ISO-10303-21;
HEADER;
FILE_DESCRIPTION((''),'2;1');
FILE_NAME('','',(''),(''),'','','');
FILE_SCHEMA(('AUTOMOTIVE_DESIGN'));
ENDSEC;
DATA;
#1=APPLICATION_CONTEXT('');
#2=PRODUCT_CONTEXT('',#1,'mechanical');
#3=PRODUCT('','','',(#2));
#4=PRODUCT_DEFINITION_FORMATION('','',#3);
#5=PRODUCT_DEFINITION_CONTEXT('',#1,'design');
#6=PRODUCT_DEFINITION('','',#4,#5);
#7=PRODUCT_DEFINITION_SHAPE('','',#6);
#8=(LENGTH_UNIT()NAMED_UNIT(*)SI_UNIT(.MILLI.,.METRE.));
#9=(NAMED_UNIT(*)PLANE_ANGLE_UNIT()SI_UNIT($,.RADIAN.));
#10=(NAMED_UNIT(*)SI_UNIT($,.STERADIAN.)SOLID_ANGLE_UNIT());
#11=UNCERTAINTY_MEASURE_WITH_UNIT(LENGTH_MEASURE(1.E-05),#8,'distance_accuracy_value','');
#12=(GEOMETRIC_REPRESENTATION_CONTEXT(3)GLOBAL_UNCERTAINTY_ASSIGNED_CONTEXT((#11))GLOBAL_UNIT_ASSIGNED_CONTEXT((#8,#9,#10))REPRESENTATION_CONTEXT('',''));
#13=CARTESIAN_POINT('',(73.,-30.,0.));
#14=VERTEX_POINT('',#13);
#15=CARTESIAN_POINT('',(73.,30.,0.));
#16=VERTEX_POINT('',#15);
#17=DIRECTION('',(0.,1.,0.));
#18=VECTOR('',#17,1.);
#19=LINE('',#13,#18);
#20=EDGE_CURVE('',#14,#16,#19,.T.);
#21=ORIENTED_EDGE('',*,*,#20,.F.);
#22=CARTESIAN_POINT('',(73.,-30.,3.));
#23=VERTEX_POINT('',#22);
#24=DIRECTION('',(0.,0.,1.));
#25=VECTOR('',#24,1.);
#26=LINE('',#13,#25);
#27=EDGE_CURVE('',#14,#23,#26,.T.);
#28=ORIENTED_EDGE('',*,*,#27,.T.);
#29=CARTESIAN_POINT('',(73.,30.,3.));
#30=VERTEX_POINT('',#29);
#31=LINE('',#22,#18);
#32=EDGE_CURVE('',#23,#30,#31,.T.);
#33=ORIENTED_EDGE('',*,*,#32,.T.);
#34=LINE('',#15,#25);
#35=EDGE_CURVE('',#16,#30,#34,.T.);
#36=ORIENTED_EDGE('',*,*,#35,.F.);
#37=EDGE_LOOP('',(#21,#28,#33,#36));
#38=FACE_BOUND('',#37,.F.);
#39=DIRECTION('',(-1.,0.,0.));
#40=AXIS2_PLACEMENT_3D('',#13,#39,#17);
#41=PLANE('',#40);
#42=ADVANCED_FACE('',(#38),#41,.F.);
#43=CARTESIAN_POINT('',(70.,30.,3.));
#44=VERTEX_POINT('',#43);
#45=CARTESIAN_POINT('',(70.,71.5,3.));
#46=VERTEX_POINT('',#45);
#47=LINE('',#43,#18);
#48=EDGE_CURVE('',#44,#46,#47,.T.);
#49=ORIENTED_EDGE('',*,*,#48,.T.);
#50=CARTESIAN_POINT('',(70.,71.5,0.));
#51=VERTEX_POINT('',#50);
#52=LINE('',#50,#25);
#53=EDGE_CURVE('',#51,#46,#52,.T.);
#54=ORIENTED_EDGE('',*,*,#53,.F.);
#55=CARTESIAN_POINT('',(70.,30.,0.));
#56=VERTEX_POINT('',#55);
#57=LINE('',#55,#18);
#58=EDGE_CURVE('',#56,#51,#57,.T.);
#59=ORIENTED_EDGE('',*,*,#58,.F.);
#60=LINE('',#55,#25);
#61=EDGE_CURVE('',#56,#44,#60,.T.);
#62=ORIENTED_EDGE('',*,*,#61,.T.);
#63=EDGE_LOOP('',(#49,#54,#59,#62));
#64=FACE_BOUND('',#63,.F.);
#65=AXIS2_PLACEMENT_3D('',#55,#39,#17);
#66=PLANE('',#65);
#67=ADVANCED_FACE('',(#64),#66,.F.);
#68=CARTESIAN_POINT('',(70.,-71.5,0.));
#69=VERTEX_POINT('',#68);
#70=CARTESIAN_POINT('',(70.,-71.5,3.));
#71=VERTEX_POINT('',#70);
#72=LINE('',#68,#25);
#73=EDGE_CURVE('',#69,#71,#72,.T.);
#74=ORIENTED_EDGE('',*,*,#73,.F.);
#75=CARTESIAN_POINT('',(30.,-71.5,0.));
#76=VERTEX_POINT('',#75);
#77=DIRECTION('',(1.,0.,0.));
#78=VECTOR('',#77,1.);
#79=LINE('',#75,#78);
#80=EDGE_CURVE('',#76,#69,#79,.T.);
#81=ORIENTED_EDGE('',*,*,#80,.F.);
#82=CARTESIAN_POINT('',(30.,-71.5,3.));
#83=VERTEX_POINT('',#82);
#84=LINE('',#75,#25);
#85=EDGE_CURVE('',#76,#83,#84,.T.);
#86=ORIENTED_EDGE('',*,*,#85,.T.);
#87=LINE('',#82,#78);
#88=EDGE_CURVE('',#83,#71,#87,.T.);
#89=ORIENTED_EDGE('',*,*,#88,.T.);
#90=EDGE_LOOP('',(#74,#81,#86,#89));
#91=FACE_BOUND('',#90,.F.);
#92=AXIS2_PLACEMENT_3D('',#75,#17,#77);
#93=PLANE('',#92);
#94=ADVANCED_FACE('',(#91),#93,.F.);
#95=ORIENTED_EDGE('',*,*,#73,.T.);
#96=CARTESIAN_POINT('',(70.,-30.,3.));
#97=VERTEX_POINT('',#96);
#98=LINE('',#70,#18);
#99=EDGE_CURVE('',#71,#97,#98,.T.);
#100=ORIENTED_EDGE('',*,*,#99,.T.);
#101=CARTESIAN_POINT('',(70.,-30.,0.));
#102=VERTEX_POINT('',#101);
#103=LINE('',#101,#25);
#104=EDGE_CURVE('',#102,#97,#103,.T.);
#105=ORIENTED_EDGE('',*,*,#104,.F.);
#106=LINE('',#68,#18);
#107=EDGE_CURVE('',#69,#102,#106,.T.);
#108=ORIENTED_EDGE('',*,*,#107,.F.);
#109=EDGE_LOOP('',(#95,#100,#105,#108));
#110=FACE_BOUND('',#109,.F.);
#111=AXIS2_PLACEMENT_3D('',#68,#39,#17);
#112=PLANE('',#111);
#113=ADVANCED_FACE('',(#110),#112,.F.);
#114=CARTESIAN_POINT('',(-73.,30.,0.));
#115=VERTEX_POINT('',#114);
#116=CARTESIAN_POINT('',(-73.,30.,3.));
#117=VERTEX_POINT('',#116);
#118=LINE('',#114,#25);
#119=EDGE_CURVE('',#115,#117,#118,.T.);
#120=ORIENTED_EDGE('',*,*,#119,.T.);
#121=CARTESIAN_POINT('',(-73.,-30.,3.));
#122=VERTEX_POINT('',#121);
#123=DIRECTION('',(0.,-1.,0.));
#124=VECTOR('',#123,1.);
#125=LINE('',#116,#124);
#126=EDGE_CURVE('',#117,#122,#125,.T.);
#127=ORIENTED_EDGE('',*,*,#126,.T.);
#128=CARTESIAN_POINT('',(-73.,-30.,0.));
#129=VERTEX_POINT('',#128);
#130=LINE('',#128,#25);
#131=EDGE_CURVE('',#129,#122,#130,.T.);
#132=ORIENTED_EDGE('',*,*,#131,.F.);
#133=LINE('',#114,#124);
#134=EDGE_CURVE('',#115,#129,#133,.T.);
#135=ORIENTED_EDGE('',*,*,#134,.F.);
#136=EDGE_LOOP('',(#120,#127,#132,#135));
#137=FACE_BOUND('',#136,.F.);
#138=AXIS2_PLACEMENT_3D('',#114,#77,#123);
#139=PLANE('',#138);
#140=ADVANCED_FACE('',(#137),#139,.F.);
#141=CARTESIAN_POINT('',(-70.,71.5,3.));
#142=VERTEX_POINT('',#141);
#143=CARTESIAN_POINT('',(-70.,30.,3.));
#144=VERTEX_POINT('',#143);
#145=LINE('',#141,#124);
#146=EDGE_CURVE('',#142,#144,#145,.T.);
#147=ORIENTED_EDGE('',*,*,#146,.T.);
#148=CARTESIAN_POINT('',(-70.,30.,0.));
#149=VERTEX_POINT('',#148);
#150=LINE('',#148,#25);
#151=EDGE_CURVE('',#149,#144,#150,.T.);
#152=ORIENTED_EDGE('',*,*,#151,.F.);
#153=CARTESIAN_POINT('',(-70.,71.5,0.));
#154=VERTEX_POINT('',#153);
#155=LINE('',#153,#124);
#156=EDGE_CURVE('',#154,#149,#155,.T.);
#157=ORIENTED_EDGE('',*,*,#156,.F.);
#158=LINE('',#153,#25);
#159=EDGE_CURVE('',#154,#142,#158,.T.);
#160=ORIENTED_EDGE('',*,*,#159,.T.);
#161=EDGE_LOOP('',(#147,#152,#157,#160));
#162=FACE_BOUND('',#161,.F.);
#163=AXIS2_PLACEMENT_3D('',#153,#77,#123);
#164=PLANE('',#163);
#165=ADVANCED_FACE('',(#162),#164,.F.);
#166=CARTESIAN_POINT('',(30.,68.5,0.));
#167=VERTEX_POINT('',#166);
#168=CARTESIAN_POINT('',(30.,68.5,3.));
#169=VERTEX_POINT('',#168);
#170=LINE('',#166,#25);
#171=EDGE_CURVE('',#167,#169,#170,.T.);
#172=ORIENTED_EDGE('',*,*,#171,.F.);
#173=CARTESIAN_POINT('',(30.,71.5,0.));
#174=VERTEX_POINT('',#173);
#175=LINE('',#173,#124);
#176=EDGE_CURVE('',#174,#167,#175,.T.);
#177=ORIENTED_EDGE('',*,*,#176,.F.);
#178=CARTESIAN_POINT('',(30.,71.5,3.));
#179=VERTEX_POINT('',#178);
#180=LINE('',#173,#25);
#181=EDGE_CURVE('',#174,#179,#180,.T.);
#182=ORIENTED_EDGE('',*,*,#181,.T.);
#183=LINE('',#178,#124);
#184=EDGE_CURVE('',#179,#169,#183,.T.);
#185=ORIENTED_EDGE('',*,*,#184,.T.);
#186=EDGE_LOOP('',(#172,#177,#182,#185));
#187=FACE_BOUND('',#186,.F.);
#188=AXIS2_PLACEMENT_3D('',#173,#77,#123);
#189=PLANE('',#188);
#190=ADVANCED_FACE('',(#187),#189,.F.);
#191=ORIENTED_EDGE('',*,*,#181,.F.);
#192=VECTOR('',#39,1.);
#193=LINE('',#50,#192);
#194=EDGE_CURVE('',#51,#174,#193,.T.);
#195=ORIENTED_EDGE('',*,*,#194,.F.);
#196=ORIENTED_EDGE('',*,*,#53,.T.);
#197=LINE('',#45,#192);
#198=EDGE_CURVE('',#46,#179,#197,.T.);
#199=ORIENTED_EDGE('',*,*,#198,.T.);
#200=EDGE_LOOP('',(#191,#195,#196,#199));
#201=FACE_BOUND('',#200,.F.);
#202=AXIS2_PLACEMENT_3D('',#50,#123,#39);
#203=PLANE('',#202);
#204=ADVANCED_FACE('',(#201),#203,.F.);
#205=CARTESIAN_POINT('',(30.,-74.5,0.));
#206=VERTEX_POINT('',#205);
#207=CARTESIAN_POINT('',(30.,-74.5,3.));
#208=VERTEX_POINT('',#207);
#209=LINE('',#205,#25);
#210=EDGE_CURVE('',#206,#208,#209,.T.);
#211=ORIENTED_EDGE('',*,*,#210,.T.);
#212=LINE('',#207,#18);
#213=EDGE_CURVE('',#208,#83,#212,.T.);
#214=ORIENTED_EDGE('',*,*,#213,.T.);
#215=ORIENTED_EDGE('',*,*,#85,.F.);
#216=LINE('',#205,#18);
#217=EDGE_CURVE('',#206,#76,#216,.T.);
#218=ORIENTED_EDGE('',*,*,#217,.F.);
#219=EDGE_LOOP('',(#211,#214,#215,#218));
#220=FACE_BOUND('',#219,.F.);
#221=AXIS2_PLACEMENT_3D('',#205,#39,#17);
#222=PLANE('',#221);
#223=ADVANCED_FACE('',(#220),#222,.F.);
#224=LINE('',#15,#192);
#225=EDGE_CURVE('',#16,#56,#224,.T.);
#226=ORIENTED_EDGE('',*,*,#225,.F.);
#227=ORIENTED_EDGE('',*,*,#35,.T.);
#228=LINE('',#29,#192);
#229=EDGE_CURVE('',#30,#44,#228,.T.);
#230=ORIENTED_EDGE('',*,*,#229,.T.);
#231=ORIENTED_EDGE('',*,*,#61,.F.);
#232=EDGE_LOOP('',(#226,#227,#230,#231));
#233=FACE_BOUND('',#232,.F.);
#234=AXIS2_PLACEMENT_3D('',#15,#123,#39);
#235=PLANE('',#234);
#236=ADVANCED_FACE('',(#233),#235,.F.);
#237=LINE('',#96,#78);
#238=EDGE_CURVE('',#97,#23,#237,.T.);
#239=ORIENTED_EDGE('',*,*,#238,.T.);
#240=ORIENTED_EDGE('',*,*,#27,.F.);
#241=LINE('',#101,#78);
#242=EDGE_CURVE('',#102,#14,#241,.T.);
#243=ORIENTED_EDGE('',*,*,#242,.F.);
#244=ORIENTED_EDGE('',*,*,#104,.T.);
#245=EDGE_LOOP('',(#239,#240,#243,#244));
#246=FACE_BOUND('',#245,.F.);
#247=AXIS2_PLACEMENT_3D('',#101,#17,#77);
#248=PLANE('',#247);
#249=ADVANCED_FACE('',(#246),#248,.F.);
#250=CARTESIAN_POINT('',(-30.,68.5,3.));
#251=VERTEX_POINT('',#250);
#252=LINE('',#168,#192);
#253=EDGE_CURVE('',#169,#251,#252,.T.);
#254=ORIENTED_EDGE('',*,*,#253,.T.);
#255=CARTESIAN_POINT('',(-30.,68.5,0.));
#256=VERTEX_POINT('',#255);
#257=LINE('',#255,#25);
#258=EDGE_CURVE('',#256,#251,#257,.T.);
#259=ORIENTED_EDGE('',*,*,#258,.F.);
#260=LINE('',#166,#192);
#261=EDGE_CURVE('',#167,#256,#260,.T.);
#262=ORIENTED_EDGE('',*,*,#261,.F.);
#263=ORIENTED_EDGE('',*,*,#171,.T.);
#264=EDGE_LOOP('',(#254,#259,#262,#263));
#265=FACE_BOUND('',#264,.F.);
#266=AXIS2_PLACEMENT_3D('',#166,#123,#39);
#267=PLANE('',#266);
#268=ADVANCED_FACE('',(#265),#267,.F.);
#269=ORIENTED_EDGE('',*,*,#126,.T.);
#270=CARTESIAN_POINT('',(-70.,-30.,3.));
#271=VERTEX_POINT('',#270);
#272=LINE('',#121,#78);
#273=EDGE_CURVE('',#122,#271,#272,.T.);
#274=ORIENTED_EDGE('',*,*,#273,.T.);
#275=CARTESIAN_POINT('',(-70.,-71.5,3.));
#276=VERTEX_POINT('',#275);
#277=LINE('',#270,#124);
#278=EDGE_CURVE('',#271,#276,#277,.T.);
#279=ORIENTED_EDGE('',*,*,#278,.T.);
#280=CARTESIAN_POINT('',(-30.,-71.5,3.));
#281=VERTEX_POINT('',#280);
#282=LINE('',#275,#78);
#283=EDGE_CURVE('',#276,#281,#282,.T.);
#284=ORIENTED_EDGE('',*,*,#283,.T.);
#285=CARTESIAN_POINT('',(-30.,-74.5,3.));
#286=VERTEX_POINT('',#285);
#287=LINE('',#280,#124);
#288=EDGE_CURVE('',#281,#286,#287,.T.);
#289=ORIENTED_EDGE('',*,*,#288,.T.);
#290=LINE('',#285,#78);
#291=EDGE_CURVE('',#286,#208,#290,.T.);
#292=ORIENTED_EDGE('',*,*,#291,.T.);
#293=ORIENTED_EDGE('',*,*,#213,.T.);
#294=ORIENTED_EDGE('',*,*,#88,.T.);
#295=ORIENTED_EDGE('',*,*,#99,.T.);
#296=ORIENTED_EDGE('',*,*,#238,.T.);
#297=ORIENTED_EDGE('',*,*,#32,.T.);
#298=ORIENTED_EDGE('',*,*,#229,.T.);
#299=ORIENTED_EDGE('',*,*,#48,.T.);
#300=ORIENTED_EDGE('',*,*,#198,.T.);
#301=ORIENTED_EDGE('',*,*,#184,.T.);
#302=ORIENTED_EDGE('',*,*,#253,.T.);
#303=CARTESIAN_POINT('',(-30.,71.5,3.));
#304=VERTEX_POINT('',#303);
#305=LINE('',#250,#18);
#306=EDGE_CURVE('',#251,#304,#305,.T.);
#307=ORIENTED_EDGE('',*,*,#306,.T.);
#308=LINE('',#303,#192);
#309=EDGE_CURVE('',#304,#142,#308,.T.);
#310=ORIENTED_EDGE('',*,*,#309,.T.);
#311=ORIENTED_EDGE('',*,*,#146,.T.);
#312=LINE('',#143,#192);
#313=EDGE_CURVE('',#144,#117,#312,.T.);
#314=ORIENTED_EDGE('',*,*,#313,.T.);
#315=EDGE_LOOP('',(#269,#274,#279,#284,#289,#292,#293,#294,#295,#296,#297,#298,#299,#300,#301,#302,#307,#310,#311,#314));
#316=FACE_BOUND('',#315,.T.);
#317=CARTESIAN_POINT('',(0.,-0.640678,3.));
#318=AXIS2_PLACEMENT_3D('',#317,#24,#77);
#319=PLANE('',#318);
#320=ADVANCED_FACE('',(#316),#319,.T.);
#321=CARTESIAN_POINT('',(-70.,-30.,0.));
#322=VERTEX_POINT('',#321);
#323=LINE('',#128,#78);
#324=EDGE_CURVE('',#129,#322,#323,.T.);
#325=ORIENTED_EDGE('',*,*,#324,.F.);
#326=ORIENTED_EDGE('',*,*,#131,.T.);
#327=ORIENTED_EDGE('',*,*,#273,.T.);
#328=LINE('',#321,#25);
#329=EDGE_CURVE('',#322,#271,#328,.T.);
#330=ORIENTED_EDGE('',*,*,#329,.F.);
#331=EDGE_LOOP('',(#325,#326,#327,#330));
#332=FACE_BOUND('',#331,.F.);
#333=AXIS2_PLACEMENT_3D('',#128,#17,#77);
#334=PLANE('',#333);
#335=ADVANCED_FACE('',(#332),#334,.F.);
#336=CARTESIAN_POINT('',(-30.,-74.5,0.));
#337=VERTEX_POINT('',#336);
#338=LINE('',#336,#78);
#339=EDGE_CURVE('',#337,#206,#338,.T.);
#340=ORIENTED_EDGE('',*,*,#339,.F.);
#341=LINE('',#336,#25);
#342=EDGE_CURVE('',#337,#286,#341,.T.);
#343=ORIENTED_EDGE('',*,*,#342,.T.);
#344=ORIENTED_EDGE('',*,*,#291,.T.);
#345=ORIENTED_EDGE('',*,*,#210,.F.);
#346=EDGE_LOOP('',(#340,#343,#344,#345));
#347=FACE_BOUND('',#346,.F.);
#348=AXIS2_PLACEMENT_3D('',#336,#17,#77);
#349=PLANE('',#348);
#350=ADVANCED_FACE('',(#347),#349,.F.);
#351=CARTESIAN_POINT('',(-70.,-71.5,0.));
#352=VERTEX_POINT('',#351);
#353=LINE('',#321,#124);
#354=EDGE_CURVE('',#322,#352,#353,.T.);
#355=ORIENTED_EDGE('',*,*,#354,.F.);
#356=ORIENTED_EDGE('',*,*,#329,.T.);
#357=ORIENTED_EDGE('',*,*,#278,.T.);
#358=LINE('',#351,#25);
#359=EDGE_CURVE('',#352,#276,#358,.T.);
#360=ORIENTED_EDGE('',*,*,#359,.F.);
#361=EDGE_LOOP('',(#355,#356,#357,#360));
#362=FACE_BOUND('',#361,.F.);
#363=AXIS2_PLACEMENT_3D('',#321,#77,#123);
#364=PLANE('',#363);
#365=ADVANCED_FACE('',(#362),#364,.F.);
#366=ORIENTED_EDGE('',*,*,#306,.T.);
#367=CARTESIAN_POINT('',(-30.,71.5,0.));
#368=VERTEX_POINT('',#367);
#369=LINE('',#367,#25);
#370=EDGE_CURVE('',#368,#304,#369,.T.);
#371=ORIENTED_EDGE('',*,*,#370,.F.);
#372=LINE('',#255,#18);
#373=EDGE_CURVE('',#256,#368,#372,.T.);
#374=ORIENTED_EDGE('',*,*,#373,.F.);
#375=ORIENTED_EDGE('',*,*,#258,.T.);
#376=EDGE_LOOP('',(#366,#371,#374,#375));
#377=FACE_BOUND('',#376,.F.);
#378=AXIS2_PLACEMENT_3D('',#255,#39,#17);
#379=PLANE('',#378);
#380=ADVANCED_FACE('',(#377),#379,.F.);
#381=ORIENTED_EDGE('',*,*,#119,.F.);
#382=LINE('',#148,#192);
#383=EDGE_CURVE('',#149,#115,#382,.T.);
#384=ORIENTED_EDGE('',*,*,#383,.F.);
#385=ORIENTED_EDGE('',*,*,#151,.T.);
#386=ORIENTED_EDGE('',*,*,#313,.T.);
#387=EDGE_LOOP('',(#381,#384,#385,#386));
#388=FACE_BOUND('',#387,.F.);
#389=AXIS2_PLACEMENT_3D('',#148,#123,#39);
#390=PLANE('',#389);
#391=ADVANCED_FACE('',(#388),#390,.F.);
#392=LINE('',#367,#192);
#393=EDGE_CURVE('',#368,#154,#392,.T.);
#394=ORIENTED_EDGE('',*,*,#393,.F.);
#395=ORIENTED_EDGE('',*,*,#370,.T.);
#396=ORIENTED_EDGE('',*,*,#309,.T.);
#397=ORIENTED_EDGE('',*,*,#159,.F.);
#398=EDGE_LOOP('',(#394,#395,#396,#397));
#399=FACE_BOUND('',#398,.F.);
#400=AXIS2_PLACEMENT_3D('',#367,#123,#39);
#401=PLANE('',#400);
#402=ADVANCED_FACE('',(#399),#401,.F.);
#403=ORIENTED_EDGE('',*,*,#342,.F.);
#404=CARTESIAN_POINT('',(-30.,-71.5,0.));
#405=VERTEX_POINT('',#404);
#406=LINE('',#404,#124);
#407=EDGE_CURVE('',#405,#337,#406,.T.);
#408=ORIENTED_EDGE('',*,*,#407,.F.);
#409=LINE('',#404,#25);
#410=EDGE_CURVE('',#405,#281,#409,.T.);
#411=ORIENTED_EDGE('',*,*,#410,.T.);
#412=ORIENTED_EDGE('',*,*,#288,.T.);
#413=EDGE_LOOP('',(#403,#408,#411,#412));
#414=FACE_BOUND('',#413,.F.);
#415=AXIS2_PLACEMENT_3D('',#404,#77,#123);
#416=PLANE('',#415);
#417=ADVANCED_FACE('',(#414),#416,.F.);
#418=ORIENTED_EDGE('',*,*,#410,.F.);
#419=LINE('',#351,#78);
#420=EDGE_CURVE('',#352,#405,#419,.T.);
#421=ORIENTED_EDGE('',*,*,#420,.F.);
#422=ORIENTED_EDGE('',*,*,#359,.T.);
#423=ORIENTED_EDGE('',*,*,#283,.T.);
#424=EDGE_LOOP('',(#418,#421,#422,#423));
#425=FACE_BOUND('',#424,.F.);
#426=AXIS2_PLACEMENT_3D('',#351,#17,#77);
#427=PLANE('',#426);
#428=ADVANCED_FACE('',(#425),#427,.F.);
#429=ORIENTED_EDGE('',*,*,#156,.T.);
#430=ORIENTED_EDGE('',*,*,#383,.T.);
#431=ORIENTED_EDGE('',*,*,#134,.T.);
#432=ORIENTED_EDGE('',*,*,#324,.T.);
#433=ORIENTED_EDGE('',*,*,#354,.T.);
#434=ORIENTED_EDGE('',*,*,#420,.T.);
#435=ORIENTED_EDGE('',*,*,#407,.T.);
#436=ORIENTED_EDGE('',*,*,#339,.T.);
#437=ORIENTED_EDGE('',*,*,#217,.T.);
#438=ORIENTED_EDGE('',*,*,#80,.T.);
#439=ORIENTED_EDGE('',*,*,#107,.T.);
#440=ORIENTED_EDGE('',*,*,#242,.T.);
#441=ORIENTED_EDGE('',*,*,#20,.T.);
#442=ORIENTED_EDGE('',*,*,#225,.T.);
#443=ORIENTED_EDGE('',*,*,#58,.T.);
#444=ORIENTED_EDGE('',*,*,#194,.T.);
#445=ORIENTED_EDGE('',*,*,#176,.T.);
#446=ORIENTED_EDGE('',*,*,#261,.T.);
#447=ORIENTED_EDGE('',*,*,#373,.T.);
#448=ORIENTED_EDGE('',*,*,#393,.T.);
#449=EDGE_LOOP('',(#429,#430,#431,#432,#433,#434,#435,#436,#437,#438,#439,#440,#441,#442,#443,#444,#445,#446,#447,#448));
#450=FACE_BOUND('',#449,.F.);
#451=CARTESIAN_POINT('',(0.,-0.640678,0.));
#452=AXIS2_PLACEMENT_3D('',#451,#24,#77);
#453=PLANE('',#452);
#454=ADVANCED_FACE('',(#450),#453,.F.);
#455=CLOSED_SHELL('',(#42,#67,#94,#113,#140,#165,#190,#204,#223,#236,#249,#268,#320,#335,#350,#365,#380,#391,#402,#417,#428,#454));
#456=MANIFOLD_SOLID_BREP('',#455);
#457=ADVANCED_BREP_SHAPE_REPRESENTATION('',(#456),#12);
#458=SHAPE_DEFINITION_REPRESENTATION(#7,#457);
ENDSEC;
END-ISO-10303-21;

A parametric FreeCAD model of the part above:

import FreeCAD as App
import Part
import Sketcher
Q = App.Units.Quantity

doc = App.newDocument("Part")
params = doc.addObject("Spreadsheet::Sheet", "Params")
for row, (alias, value) in enumerate([
    ("sketch1_width", "40 mm"),
    ("sketch1_width2", "3 mm"),
    ("sketch1_width3", "60 mm"),
    ("sketch1_height", "41.5 mm"),
    ("pad1_length", "3 mm"),
], start=1):
    params.set(f"A{row}", alias)
    params.set(f"B{row}", "=" + value)
    params.setAlias(f"B{row}", alias)

body = doc.addObject("PartDesign::Body", "Body")

# Sketch on XY plane
sketch1 = body.newObject("Sketcher::SketchObject", "Sketch")
sketch1.AttachmentSupport = (doc.getObject("XY_Plane"), [""])
sketch1.MapMode = "FlatFace"
sketch1.addGeometry([
    Part.LineSegment(App.Vector(30, -71.5, 0), App.Vector(70, -71.5, 0)),  # 0
    Part.LineSegment(App.Vector(70, -71.5, 0), App.Vector(70, -30, 0)),  # 1
    Part.LineSegment(App.Vector(70, -30, 0), App.Vector(73, -30, 0)),  # 2
    Part.LineSegment(App.Vector(73, -30, 0), App.Vector(73, 30, 0)),  # 3
    Part.LineSegment(App.Vector(73, 30, 0), App.Vector(70, 30, 0)),  # 4
    Part.LineSegment(App.Vector(70, 30, 0), App.Vector(70, 71.5, 0)),  # 5
    Part.LineSegment(App.Vector(70, 71.5, 0), App.Vector(30, 71.5, 0)),  # 6
    Part.LineSegment(App.Vector(30, 71.5, 0), App.Vector(30, 68.5, 0)),  # 7
    Part.LineSegment(App.Vector(30, 68.5, 0), App.Vector(-30, 68.5, 0)),  # 8
    Part.LineSegment(App.Vector(-30, 68.5, 0), App.Vector(-30, 71.5, 0)),  # 9
    Part.LineSegment(App.Vector(-30, 71.5, 0), App.Vector(-70, 71.5, 0)),  # 10
    Part.LineSegment(App.Vector(-70, 71.5, 0), App.Vector(-70, 30, 0)),  # 11
    Part.LineSegment(App.Vector(-70, 30, 0), App.Vector(-73, 30, 0)),  # 12
    Part.LineSegment(App.Vector(-73, 30, 0), App.Vector(-73, -30, 0)),  # 13
    Part.LineSegment(App.Vector(-73, -30, 0), App.Vector(-70, -30, 0)),  # 14
    Part.LineSegment(App.Vector(-70, -30, 0), App.Vector(-70, -71.5, 0)),  # 15
    Part.LineSegment(App.Vector(-70, -71.5, 0), App.Vector(-30, -71.5, 0)),  # 16
    Part.LineSegment(App.Vector(-30, -71.5, 0), App.Vector(-30, -74.5, 0)),  # 17
    Part.LineSegment(App.Vector(-30, -74.5, 0), App.Vector(30, -74.5, 0)),  # 18
    Part.LineSegment(App.Vector(30, -74.5, 0), App.Vector(30, -71.5, 0)),  # 19
], False)
sketch1.addConstraint([
    Sketcher.Constraint("Coincident", 0, 2, 1, 1),
    Sketcher.Constraint("Coincident", 1, 2, 2, 1),
    Sketcher.Constraint("Coincident", 2, 2, 3, 1),
    Sketcher.Constraint("Coincident", 3, 2, 4, 1),
    Sketcher.Constraint("Coincident", 4, 2, 5, 1),
    Sketcher.Constraint("Coincident", 5, 2, 6, 1),
    Sketcher.Constraint("Coincident", 6, 2, 7, 1),
    Sketcher.Constraint("Coincident", 7, 2, 8, 1),
    Sketcher.Constraint("Coincident", 8, 2, 9, 1),
    Sketcher.Constraint("Coincident", 9, 2, 10, 1),
    Sketcher.Constraint("Coincident", 10, 2, 11, 1),
    Sketcher.Constraint("Coincident", 11, 2, 12, 1),
    Sketcher.Constraint("Coincident", 12, 2, 13, 1),
    Sketcher.Constraint("Coincident", 13, 2, 14, 1),
    Sketcher.Constraint("Coincident", 14, 2, 15, 1),
    Sketcher.Constraint("Coincident", 15, 2, 16, 1),
    Sketcher.Constraint("Coincident", 16, 2, 17, 1),
    Sketcher.Constraint("Coincident", 17, 2, 18, 1),
    Sketcher.Constraint("Coincident", 18, 2, 19, 1),
    Sketcher.Constraint("Coincident", 19, 2, 0, 1),
    Sketcher.Constraint("Horizontal", 0),
    Sketcher.Constraint("Vertical", 1),
    Sketcher.Constraint("Horizontal", 2),
    Sketcher.Constraint("Vertical", 3),
    Sketcher.Constraint("Horizontal", 4),
    Sketcher.Constraint("Vertical", 5),
    Sketcher.Constraint("Horizontal", 6),
    Sketcher.Constraint("Vertical", 7),
    Sketcher.Constraint("Horizontal", 8),
    Sketcher.Constraint("Vertical", 9),
    Sketcher.Constraint("Horizontal", 10),
    Sketcher.Constraint("Vertical", 11),
    Sketcher.Constraint("Horizontal", 12),
    Sketcher.Constraint("Vertical", 13),
    Sketcher.Constraint("Horizontal", 14),
    Sketcher.Constraint("Vertical", 15),
    Sketcher.Constraint("Horizontal", 16),
    Sketcher.Constraint("Vertical", 17),
    Sketcher.Constraint("Horizontal", 18),
    Sketcher.Constraint("Vertical", 19),
    Sketcher.Constraint("Symmetric", 0, 2, 10, 2, -1, 1),
    Sketcher.Constraint("Symmetric", 2, 2, 12, 2, -1, 1),
    Sketcher.Constraint("Symmetric", 4, 2, 14, 2, -1, 1),
    Sketcher.Constraint("Symmetric", 6, 2, 16, 2, -1, 1),
    Sketcher.Constraint("Symmetric", 6, 2, 9, 2, -2),
    Sketcher.Constraint("Symmetric", 4, 2, 11, 2, -2),
    Sketcher.Constraint("Vertical", 7, 2, 18, 2),
    Sketcher.Constraint("Equal", 18, 3),
    Sketcher.Constraint("Equal", 14, 7),
    Sketcher.Constraint("Equal", 9, 17),
    Sketcher.Constraint("DistanceX", 0, 1, 0, 2, Q("40 mm")),
    Sketcher.Constraint("DistanceX", 2, 1, 2, 2, Q("3 mm")),
    Sketcher.Constraint("DistanceX", 8, 2, 8, 1, Q("60 mm")),
    Sketcher.Constraint("DistanceY", 1, 1, 1, 2, Q("41.5 mm")),
])
sketch1.setExpression("Constraints[50]", "Params.sketch1_width")
sketch1.setExpression("Constraints[51]", "Params.sketch1_width2")
sketch1.setExpression("Constraints[52]", "Params.sketch1_width3")
sketch1.setExpression("Constraints[53]", "Params.sketch1_height")
pad1 = body.newObject("PartDesign::Pad", "Pad")
pad1.Profile = sketch1
pad1.setExpression("Length", "Params.pad1_length")

doc.recompute()
